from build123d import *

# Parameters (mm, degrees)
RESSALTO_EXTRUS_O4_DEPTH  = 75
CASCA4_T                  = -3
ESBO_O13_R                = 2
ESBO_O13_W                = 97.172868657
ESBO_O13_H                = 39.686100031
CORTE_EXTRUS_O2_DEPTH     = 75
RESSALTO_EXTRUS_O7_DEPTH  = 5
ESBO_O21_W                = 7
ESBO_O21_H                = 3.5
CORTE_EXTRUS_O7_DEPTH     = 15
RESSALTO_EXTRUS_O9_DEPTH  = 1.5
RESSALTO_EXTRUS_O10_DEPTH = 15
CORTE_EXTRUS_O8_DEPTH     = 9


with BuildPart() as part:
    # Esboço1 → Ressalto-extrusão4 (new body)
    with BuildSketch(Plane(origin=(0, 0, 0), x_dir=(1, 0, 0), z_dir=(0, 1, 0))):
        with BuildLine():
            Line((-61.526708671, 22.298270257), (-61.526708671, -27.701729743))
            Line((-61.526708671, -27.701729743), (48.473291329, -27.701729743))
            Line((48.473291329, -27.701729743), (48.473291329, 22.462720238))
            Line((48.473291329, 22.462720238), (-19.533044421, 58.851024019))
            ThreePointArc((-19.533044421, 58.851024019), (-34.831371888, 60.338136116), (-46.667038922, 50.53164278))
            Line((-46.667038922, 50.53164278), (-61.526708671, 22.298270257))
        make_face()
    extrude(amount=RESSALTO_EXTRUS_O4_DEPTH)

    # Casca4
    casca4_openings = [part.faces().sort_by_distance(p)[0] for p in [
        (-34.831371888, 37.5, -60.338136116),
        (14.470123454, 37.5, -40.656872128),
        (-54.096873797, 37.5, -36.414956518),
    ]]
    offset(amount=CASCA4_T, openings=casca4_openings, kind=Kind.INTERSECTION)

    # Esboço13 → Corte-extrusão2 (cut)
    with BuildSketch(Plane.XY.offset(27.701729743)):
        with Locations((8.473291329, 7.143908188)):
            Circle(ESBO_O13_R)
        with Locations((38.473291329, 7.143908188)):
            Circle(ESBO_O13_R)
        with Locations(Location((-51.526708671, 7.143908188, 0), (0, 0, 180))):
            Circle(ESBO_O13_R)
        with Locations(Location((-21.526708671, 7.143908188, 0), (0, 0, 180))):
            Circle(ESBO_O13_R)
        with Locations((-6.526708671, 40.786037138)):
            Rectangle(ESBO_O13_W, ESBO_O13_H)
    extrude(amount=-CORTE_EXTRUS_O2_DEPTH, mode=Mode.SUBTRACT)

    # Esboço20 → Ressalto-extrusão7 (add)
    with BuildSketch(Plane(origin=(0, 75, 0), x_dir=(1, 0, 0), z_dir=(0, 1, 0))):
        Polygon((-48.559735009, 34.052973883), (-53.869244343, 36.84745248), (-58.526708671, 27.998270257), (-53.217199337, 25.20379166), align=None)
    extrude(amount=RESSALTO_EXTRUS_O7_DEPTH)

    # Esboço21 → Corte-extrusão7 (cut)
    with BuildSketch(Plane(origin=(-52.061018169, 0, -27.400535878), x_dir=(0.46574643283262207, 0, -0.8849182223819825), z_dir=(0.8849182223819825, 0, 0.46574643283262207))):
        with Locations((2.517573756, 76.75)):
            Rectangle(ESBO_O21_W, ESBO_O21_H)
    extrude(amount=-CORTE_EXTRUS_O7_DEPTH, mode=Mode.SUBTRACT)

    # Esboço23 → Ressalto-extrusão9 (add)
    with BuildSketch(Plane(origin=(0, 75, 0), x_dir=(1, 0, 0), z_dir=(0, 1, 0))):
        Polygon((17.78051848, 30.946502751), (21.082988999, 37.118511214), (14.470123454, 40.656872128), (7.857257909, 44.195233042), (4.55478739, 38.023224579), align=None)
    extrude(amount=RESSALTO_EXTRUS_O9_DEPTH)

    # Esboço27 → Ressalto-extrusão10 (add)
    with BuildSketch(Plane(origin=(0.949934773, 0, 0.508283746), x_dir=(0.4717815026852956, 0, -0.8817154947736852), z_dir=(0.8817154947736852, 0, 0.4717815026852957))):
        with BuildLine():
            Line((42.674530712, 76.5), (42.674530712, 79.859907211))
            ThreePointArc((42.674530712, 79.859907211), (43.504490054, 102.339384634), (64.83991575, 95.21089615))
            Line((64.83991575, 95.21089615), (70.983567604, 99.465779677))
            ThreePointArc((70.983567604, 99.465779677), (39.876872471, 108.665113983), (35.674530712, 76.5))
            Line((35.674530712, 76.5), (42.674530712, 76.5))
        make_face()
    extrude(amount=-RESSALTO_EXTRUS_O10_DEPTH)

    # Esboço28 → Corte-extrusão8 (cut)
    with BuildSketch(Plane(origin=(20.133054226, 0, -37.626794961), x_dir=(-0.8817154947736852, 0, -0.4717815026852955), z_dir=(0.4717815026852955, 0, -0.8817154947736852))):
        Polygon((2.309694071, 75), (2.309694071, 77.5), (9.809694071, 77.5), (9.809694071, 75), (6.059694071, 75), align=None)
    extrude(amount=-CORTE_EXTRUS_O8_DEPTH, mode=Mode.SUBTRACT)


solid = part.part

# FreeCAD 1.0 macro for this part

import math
import FreeCAD as App
import Part
import Sketcher
Q = App.Units.Quantity


def faces_at(feature, points):
    """Names of the faces that lie closest to the given points."""
    faces = feature.Shape.Faces
    near = lambda p: min(range(len(faces)), key=lambda i: faces[i].distToShape(Part.Vertex(*p))[0])
    return sorted({f"Face{near(p) + 1}" for p in points})

doc = App.newDocument("Part")
params = doc.addObject("Spreadsheet::Sheet", "Params")
for row, (alias, value) in enumerate([
    ("sketch1_radius", "20 mm"),
    ("sketch1_width", "110 mm"),
    ("sketch1_height", "50 mm"),
    ("pad1_length", "75 mm"),
    ("thickness_wall", "3 mm"),
    ("sketch2_diameter", "4 mm"),
    ("pocket1_length", "75 mm"),
    ("sketch3_length", "6 mm"),
    ("sketch3_length2", "10 mm"),
    ("pad2_length", "5 mm"),
    ("sketch4_width", "7 mm"),
    ("sketch4_height", "3.5 mm"),
    ("pocket2_length", "15 mm"),
    ("sketch5_length", "7 mm"),
    ("sketch5_length2", "14.999998 mm"),
    ("pad3_length", "1.5 mm"),
    ("sketch6_width", "7 mm"),
    ("sketch6_radius", "14.05 mm"),
    ("pad4_length", "15 mm"),
    ("sketch7_width", "7.5 mm"),
    ("sketch7_height", "2.5 mm"),
    ("pocket3_length", "9 mm"),
], start=1):
    params.set(f"A{row}", alias)
    params.set(f"B{row}", "=" + value)
    params.setAlias(f"B{row}", alias)

body = doc.addObject("PartDesign::Body", "Body")

sketch1 = doc.addObject("Sketcher::SketchObject", "Sketch")
body.addObject(sketch1)
sketch1.AttachmentSupport = (doc.XZ_Plane, [""])
sketch1.MapMode = "FlatFace"
sketch1.addGeometry(Part.LineSegment(App.Vector(-62, -22, 0), App.Vector(-62, 28, 0)), False)
sketch1.addGeometry(Part.LineSegment(App.Vector(-62, 28, 0), App.Vector(48, 28, 0)), False)
sketch1.addGeometry(Part.LineSegment(App.Vector(48, 28, 0), App.Vector(48, -22, 0)), False)
sketch1.addGeometry(Part.LineSegment(App.Vector(48, -22, 0), App.Vector(-20, -59, 0)), False)
sketch1.addGeometry(Part.ArcOfCircle(Part.Circle(App.Vector(-29, -41, 0), App.Vector(0, 0, 1), 20), math.radians(-152), math.radians(-62)), False)
sketch1.addGeometry(Part.LineSegment(App.Vector(-47, -51, 0), App.Vector(-62, -22, 0)), False)
sketch1.addConstraint(Sketcher.Constraint("Coincident", 0, 2, 1, 1))
sketch1.addConstraint(Sketcher.Constraint("Coincident", 1, 2, 2, 1))
sketch1.addConstraint(Sketcher.Constraint("Coincident", 2, 2, 3, 1))
sketch1.addConstraint(Sketcher.Constraint("Tangent", 3, 2, 4, 2))
sketch1.addConstraint(Sketcher.Constraint("Tangent", 4, 1, 5, 1))
sketch1.addConstraint(Sketcher.Constraint("Coincident", 5, 2, 0, 1))
sketch1.addConstraint(Sketcher.Constraint("Vertical", 0))
sketch1.addConstraint(Sketcher.Constraint("Horizontal", 1))
sketch1.addConstraint(Sketcher.Constraint("Vertical", 2))
sketch1.addConstraint(Sketcher.Constraint("Radius", 4, Q("20 mm")))
sketch1.addConstraint(Sketcher.Constraint("DistanceX", 1, 1, 1, 2, Q("110 mm")))
sketch1.addConstraint(Sketcher.Constraint("DistanceY", 0, 1, 0, 2, Q("50 mm")))
sketch1.addConstraint(Sketcher.Constraint("Angle", 3, Q("-151.85 deg")))
sketch1.addConstraint(Sketcher.Constraint("DistanceY", 2, 2, 2, 1, Q("50.16445 mm")))
sketch1.addConstraint(Sketcher.Constraint("Distance", 3, Q("77.129569 mm")))
sketch1.addConstraint(Sketcher.Constraint("DistanceX", 0, 2, -1, 1, Q("61.526709 mm")))
sketch1.addConstraint(Sketcher.Constraint("DistanceY", -1, 1, 0, 2, Q("27.70173 mm")))
sketch1.setExpression("Constraints[9]", "Params.sketch1_radius")
sketch1.setExpression("Constraints[10]", "Params.sketch1_width")
sketch1.setExpression("Constraints[11]", "Params.sketch1_height")
pad1 = doc.addObject("PartDesign::Pad", "Pad")
body.addObject(pad1)
pad1.Profile = sketch1
pad1.setExpression("Length", "Params.pad1_length")
pad1.Reversed = True
doc.recompute()

thickness = doc.addObject("PartDesign::Thickness", "Thickness")
body.addObject(thickness)
thickness.Base = (pad1, faces_at(pad1, [(-34.831, 37.5, -60.338), (14.47, 37.5, -40.657), (-54.097, 37.5, -36.415)]))
thickness.setExpression("Value", "Params.thickness_wall")
thickness.Reversed = True
thickness.Join = "Intersection"

sketch2 = doc.addObject("Sketcher::SketchObject", "Sketch001")
body.addObject(sketch2)
sketch2.AttachmentSupport = (doc.XY_Plane, [""])
sketch2.MapMode = "FlatFace"
sketch2.AttachmentOffset = App.Placement(App.Vector(0, 0, 27.70173), App.Rotation())
sketch2.addGeometry(Part.Circle(App.Vector(8.5, 7.1, 0), App.Vector(0, 0, 1), 2), False)
sketch2.addGeometry(Part.Circle(App.Vector(38.5, 7.1, 0), App.Vector(0, 0, 1), 2), False)
sketch2.addGeometry(Part.Circle(App.Vector(-51.5, 7.1, 0), App.Vector(0, 0, 1), 2), False)
sketch2.addGeometry(Part.Circle(App.Vector(-21.5, 7.1, 0), App.Vector(0, 0, 1), 2), False)
sketch2.addGeometry(Part.LineSegment(App.Vector(-55.1, 60.6, 0), App.Vector(-55.1, 20.9, 0)), False)
sketch2.addGeometry(Part.LineSegment(App.Vector(-55.1, 20.9, 0), App.Vector(42.1, 20.9, 0)), False)
sketch2.addGeometry(Part.LineSegment(App.Vector(42.1, 20.9, 0), App.Vector(42.1, 60.6, 0)), False)
sketch2.addGeometry(Part.LineSegment(App.Vector(42.1, 60.6, 0), App.Vector(-55.1, 60.6, 0)), False)
sketch2.addConstraint(Sketcher.Constraint("Coincident", 4, 2, 5, 1))
sketch2.addConstraint(Sketcher.Constraint("Coincident", 5, 2, 6, 1))
sketch2.addConstraint(Sketcher.Constraint("Coincident", 6, 2, 7, 1))
sketch2.addConstraint(Sketcher.Constraint("Coincident", 7, 2, 4, 1))
sketch2.addConstraint(Sketcher.Constraint("Vertical", 4))
sketch2.addConstraint(Sketcher.Constraint("Horizontal", 5))
sketch2.addConstraint(Sketcher.Constraint("Vertical", 6))
sketch2.addConstraint(Sketcher.Constraint("Horizontal", 7))
sketch2.addConstraint(Sketcher.Constraint("Equal", 0, 1))
sketch2.addConstraint(Sketcher.Constraint("Equal", 1, 2))
sketch2.addConstraint(Sketcher.Constraint("Equal", 2, 3))
sketch2.addConstraint(Sketcher.Constraint("Horizontal", 0, 3, 1, 3))
sketch2.addConstraint(Sketcher.Constraint("Horizontal", 1, 3, 2, 3))
sketch2.addConstraint(Sketcher.Constraint("Horizontal", 2, 3, 3, 3))
sketch2.addConstraint(Sketcher.Constraint("Diameter", 0, Q("4 mm")))
sketch2.addConstraint(Sketcher.Constraint("DistanceX", 0, 3, 1, 3, Q("30 mm")))
sketch2.addConstraint(Sketcher.Constraint("DistanceX", 2, 3, 0, 3, Q("60 mm")))
sketch2.addConstraint(Sketcher.Constraint("DistanceX", 3, 3, 0, 3, Q("30 mm")))
sketch2.addConstraint(Sketcher.Constraint("DistanceY", 4, 2, 4, 1, Q("39.6861 mm")))
sketch2.addConstraint(Sketcher.Constraint("DistanceX", 5, 1, 5, 2, Q("97.172869 mm")))
sketch2.addConstraint(Sketcher.Constraint("DistanceX", -1, 1, 0, 3, Q("8.473291 mm")))
sketch2.addConstraint(Sketcher.Constraint("DistanceY", -1, 1, 0, 3, Q("7.143908 mm")))
sketch2.addConstraint(Sketcher.Constraint("DistanceY", 2, 3, 4, 2, Q("13.799079 mm")))
sketch2.addConstraint(Sketcher.Constraint("DistanceX", 4, 2, -1, 1, Q("55.113143 mm")))
sketch2.setExpression("Constraints[14]", "Params.sketch2_diameter")
pocket1 = doc.addObject("PartDesign::Pocket", "Pocket")
body.addObject(pocket1)
pocket1.Profile = sketch2
pocket1.setExpression("Length", "Params.pocket1_length")

sketch3 = doc.addObject("Sketcher::SketchObject", "Sketch002")
body.addObject(sketch3)
sketch3.AttachmentSupport = (doc.XZ_Plane, [""])
sketch3.MapMode = "FlatFace"
sketch3.AttachmentOffset = App.Placement(App.Vector(0, 0, -75), App.Rotation())
sketch3.addGeometry(Part.LineSegment(App.Vector(-49, -34, 0), App.Vector(-54, -37, 0)), False)
sketch3.addGeometry(Part.LineSegment(App.Vector(-54, -37, 0), App.Vector(-59, -28, 0)), False)
sketch3.addGeometry(Part.LineSegment(App.Vector(-59, -28, 0), App.Vector(-53, -25, 0)), False)
sketch3.addGeometry(Part.LineSegment(App.Vector(-53, -25, 0), App.Vector(-49, -34, 0)), False)
sketch3.addConstraint(Sketcher.Constraint("Coincident", 0, 2, 1, 1))
sketch3.addConstraint(Sketcher.Constraint("Coincident", 1, 2, 2, 1))
sketch3.addConstraint(Sketcher.Constraint("Coincident", 2, 2, 3, 1))
sketch3.addConstraint(Sketcher.Constraint("Coincident", 3, 2, 0, 1))
sketch3.addConstraint(Sketcher.Constraint("Perpendicular", 0, 1))
sketch3.addConstraint(Sketcher.Constraint("Perpendicular", 1, 2))
sketch3.addConstraint(Sketcher.Constraint("Perpendicular", 2, 3))
sketch3.addConstraint(Sketcher.Constraint("Distance", 0, Q("6 mm")))
sketch3.addConstraint(Sketcher.Constraint("Distance", 1, Q("10 mm")))
sketch3.addConstraint(Sketcher.Constraint("DistanceX", 2, 2, -1, 1, Q("53.217199 mm")))
sketch3.addConstraint(Sketcher.Constraint("DistanceX", 1, 2, -1, 1, Q("58.526709 mm")))
sketch3.addConstraint(Sketcher.Constraint("DistanceY", 1, 2, -1, 1, Q("27.99827 mm")))
sketch3.setExpression("Constraints[7]", "Params.sketch3_length")
sketch3.setExpression("Constraints[8]", "Params.sketch3_length2")
pad2 = doc.addObject("PartDesign::Pad", "Pad001")
body.addObject(pad2)
pad2.Profile = sketch3
pad2.setExpression("Length", "Params.pad2_length")
pad2.Reversed = True

sketch4 = doc.addObject("Sketcher::SketchObject", "Sketch003")
body.addObject(sketch4)
sketch4.Placement = App.Placement(App.Vector(-52.061018, 0, -27.400536), App.Rotation(App.Vector(0.465746433, 0, -0.884918222), App.Vector(0, 0.999999999, 0), App.Vector(0.884918222, 0, 0.465746433), "ZXY"))
sketch4.addGeometry(Part.LineSegment(App.Vector(-1, 78.5, 0), App.Vector(-1, 75, 0)), False)
sketch4.addGeometry(Part.LineSegment(App.Vector(-1, 75, 0), App.Vector(6, 75, 0)), False)
sketch4.addGeometry(Part.LineSegment(App.Vector(6, 75, 0), App.Vector(6, 78.5, 0)), False)
sketch4.addGeometry(Part.LineSegment(App.Vector(6, 78.5, 0), App.Vector(-1, 78.5, 0)), False)
sketch4.addConstraint(Sketcher.Constraint("Coincident", 0, 2, 1, 1))
sketch4.addConstraint(Sketcher.Constraint("Coincident", 1, 2, 2, 1))
sketch4.addConstraint(Sketcher.Constraint("Coincident", 2, 2, 3, 1))
sketch4.addConstraint(Sketcher.Constraint("Coincident", 3, 2, 0, 1))
sketch4.addConstraint(Sketcher.Constraint("Vertical", 0))
sketch4.addConstraint(Sketcher.Constraint("Horizontal", 1))
sketch4.addConstraint(Sketcher.Constraint("Vertical", 2))
sketch4.addConstraint(Sketcher.Constraint("Horizontal", 3))
sketch4.addConstraint(Sketcher.Constraint("DistanceX", 1, 1, 1, 2, Q("7 mm")))
sketch4.addConstraint(Sketcher.Constraint("DistanceY", 0, 2, 0, 1, Q("3.5 mm")))
sketch4.addConstraint(Sketcher.Constraint("DistanceY", -1, 1, 0, 2, Q("75 mm")))
sketch4.addConstraint(Sketcher.Constraint("DistanceX", 0, 2, -1, 1, Q("0.982426 mm")))
sketch4.setExpression("Constraints[8]", "Params.sketch4_width")
sketch4.setExpression("Constraints[9]", "Params.sketch4_height")
pocket2 = doc.addObject("PartDesign::Pocket", "Pocket001")
body.addObject(pocket2)
pocket2.Profile = sketch4
pocket2.setExpression("Length", "Params.pocket2_length")

sketch5 = doc.addObject("Sketcher::SketchObject", "Sketch004")
body.addObject(sketch5)
sketch5.AttachmentSupport = (doc.XZ_Plane, [""])
sketch5.MapMode = "FlatFace"
sketch5.AttachmentOffset = App.Placement(App.Vector(0, 0, -75), App.Rotation())
sketch5.addGeometry(Part.LineSegment(App.Vector(18, -31, 0), App.Vector(21, -37, 0)), False)
sketch5.addGeometry(Part.LineSegment(App.Vector(21, -37, 0), App.Vector(8, -44, 0)), False)
sketch5.addGeometry(Part.LineSegment(App.Vector(8, -44, 0), App.Vector(5, -38, 0)), False)
sketch5.addGeometry(Part.LineSegment(App.Vector(5, -38, 0), App.Vector(18, -31, 0)), False)
sketch5.addConstraint(Sketcher.Constraint("Coincident", 0, 2, 1, 1))
sketch5.addConstraint(Sketcher.Constraint("Coincident", 1, 2, 2, 1))
sketch5.addConstraint(Sketcher.Constraint("Coincident", 2, 2, 3, 1))
sketch5.addConstraint(Sketcher.Constraint("Coincident", 3, 2, 0, 1))
sketch5.addConstraint(Sketcher.Constraint("Perpendicular", 0, 1))
sketch5.addConstraint(Sketcher.Constraint("Perpendicular", 1, 2))
sketch5.addConstraint(Sketcher.Constraint("Perpendicular", 2, 3))
sketch5.addConstraint(Sketcher.Constraint("Distance", 0, Q("7 mm")))
sketch5.addConstraint(Sketcher.Constraint("Distance", 1, Q("14.999998 mm")))
sketch5.addConstraint(Sketcher.Constraint("Angle", 0, Q("-61.85 deg")))
sketch5.addConstraint(Sketcher.Constraint("DistanceX", -1, 1, 0, 2, Q("21.082989 mm")))
sketch5.addConstraint(Sketcher.Constraint("DistanceY", 0, 2, -1, 1, Q("37.118511 mm")))
sketch5.setExpression("Constraints[7]", "Params.sketch5_length")
sketch5.setExpression("Constraints[8]", "Params.sketch5_length2")
pad3 = doc.addObject("PartDesign::Pad", "Pad002")
body.addObject(pad3)
pad3.Profile = sketch5
pad3.setExpression("Length", "Params.pad3_length")
pad3.Reversed = True

sketch6 = doc.addObject("Sketcher::SketchObject", "Sketch005")
body.addObject(sketch6)
sketch6.Placement = App.Placement(App.Vector(0.949935, 0, 0.508284), App.Rotation(App.Vector(0.471781503, 0, -0.881715495), App.Vector(0, 1.000000001, 0), App.Vector(0.881715495, 0, 0.471781503), "ZXY"))
sketch6.addGeometry(Part.LineSegment(App.Vector(42.7, 76.5, 0), App.Vector(42.7, 79.9, 0)), False)
sketch6.addGeometry(Part.ArcOfCircle(Part.Circle(App.Vector(51.5, 90.8, 0), App.Vector(0, 0, 1), 14.1), math.radians(18), math.radians(231)), False)
sketch6.addGeometry(Part.LineSegment(App.Vector(64.8, 95.2, 0), App.Vector(71, 99.5, 0)), False)
sketch6.addGeometry(Part.ArcOfCircle(Part.Circle(App.Vector(51.5, 90.8, 0), App.Vector(0, 0, 1), 21.3), math.radians(24), math.radians(222)), False)
sketch6.addGeometry(Part.LineSegment(App.Vector(35.7, 76.5, 0), App.Vector(42.7, 76.5, 0)), False)
sketch6.addConstraint(Sketcher.Constraint("Coincident", 0, 2, 1, 2))
sketch6.addConstraint(Sketcher.Constraint("Coincident", 1, 1, 2, 1))
sketch6.addConstraint(Sketcher.Constraint("Coincident", 2, 2, 3, 1))
sketch6.addConstraint(Sketcher.Constraint("Coincident", 3, 2, 4, 1))
sketch6.addConstraint(Sketcher.Constraint("Coincident", 4, 2, 0, 1))
sketch6.addConstraint(Sketcher.Constraint("Vertical", 0))
sketch6.addConstraint(Sketcher.Constraint("Horizontal", 4))
sketch6.addConstraint(Sketcher.Constraint("Coincident", 3, 3, 1, 3))
sketch6.addConstraint(Sketcher.Constraint("DistanceX", 4, 1, 4, 2, Q("7 mm")))
sketch6.addConstraint(Sketcher.Constraint("Radius", 1, Q("14.05 mm")))
sketch6.addConstraint(Sketcher.Constraint("DistanceY", -1, 1, 3, 2, Q("76.5 mm")))
sketch6.addConstraint(Sketcher.Constraint("Radius", 3, Q("21.324729 mm")))
sketch6.addConstraint(Sketcher.Constraint("DistanceY", 1, 3, 2, 2, Q("8.6768 mm")))
sketch6.addConstraint(Sketcher.Constraint("DistanceY", 0, 1, 0, 2, Q("3.359907 mm")))
sketch6.addConstraint(Sketcher.Constraint("DistanceX", -1, 1, 0, 2, Q("42.674531 mm")))
sketch6.addConstraint(Sketcher.Constraint("DistanceX", 1, 3, 1, 1, Q("13.33601 mm")))
sketch6.setExpression("Constraints[8]", "Params.sketch6_width")
sketch6.setExpression("Constraints[9]", "Params.sketch6_radius")
pad4 = doc.addObject("PartDesign::Pad", "Pad003")
body.addObject(pad4)
pad4.Profile = sketch6
pad4.setExpression("Length", "Params.pad4_length")
pad4.Reversed = True

sketch7 = doc.addObject("Sketcher::SketchObject", "Sketch006")
body.addObject(sketch7)
sketch7.Placement = App.Placement(App.Vector(20.133054, 0, -37.626795), App.Rotation(App.Vector(-0.881715495, 0, -0.471781503), App.Vector(0, 1.000000001, 0), App.Vector(0.471781503, 0, -0.881715495), "ZXY"))
sketch7.addGeometry(Part.LineSegment(App.Vector(2.3, 77.5, 0), App.Vector(2.3, 75, 0)), False)
sketch7.addGeometry(Part.LineSegment(App.Vector(2.3, 75, 0), App.Vector(9.8, 75, 0)), False)
sketch7.addGeometry(Part.LineSegment(App.Vector(9.8, 75, 0), App.Vector(9.8, 77.5, 0)), False)
sketch7.addGeometry(Part.LineSegment(App.Vector(9.8, 77.5, 0), App.Vector(2.3, 77.5, 0)), False)
sketch7.addConstraint(Sketcher.Constraint("Coincident", 0, 2, 1, 1))
sketch7.addConstraint(Sketcher.Constraint("Coincident", 1, 2, 2, 1))
sketch7.addConstraint(Sketcher.Constraint("Coincident", 2, 2, 3, 1))
sketch7.addConstraint(Sketcher.Constraint("Coincident", 3, 2, 0, 1))
sketch7.addConstraint(Sketcher.Constraint("Vertical", 0))
sketch7.addConstraint(Sketcher.Constraint("Horizontal", 1))
sketch7.addConstraint(Sketcher.Constraint("Vertical", 2))
sketch7.addConstraint(Sketcher.Constraint("Horizontal", 3))
sketch7.addConstraint(Sketcher.Constraint("DistanceX", 1, 1, 1, 2, Q("7.5 mm")))
sketch7.addConstraint(Sketcher.Constraint("DistanceY", 0, 2, 0, 1, Q("2.5 mm")))
sketch7.addConstraint(Sketcher.Constraint("DistanceY", -1, 1, 0, 2, Q("75 mm")))
sketch7.addConstraint(Sketcher.Constraint("DistanceX", -1, 1, 0, 2, Q("2.309694 mm")))
sketch7.setExpression("Constraints[8]", "Params.sketch7_width")
sketch7.setExpression("Constraints[9]", "Params.sketch7_height")
pocket3 = doc.addObject("PartDesign::Pocket", "Pocket002")
body.addObject(pocket3)
pocket3.Profile = sketch7
pocket3.setExpression("Length", "Params.pocket3_length")

doc.recompute()
